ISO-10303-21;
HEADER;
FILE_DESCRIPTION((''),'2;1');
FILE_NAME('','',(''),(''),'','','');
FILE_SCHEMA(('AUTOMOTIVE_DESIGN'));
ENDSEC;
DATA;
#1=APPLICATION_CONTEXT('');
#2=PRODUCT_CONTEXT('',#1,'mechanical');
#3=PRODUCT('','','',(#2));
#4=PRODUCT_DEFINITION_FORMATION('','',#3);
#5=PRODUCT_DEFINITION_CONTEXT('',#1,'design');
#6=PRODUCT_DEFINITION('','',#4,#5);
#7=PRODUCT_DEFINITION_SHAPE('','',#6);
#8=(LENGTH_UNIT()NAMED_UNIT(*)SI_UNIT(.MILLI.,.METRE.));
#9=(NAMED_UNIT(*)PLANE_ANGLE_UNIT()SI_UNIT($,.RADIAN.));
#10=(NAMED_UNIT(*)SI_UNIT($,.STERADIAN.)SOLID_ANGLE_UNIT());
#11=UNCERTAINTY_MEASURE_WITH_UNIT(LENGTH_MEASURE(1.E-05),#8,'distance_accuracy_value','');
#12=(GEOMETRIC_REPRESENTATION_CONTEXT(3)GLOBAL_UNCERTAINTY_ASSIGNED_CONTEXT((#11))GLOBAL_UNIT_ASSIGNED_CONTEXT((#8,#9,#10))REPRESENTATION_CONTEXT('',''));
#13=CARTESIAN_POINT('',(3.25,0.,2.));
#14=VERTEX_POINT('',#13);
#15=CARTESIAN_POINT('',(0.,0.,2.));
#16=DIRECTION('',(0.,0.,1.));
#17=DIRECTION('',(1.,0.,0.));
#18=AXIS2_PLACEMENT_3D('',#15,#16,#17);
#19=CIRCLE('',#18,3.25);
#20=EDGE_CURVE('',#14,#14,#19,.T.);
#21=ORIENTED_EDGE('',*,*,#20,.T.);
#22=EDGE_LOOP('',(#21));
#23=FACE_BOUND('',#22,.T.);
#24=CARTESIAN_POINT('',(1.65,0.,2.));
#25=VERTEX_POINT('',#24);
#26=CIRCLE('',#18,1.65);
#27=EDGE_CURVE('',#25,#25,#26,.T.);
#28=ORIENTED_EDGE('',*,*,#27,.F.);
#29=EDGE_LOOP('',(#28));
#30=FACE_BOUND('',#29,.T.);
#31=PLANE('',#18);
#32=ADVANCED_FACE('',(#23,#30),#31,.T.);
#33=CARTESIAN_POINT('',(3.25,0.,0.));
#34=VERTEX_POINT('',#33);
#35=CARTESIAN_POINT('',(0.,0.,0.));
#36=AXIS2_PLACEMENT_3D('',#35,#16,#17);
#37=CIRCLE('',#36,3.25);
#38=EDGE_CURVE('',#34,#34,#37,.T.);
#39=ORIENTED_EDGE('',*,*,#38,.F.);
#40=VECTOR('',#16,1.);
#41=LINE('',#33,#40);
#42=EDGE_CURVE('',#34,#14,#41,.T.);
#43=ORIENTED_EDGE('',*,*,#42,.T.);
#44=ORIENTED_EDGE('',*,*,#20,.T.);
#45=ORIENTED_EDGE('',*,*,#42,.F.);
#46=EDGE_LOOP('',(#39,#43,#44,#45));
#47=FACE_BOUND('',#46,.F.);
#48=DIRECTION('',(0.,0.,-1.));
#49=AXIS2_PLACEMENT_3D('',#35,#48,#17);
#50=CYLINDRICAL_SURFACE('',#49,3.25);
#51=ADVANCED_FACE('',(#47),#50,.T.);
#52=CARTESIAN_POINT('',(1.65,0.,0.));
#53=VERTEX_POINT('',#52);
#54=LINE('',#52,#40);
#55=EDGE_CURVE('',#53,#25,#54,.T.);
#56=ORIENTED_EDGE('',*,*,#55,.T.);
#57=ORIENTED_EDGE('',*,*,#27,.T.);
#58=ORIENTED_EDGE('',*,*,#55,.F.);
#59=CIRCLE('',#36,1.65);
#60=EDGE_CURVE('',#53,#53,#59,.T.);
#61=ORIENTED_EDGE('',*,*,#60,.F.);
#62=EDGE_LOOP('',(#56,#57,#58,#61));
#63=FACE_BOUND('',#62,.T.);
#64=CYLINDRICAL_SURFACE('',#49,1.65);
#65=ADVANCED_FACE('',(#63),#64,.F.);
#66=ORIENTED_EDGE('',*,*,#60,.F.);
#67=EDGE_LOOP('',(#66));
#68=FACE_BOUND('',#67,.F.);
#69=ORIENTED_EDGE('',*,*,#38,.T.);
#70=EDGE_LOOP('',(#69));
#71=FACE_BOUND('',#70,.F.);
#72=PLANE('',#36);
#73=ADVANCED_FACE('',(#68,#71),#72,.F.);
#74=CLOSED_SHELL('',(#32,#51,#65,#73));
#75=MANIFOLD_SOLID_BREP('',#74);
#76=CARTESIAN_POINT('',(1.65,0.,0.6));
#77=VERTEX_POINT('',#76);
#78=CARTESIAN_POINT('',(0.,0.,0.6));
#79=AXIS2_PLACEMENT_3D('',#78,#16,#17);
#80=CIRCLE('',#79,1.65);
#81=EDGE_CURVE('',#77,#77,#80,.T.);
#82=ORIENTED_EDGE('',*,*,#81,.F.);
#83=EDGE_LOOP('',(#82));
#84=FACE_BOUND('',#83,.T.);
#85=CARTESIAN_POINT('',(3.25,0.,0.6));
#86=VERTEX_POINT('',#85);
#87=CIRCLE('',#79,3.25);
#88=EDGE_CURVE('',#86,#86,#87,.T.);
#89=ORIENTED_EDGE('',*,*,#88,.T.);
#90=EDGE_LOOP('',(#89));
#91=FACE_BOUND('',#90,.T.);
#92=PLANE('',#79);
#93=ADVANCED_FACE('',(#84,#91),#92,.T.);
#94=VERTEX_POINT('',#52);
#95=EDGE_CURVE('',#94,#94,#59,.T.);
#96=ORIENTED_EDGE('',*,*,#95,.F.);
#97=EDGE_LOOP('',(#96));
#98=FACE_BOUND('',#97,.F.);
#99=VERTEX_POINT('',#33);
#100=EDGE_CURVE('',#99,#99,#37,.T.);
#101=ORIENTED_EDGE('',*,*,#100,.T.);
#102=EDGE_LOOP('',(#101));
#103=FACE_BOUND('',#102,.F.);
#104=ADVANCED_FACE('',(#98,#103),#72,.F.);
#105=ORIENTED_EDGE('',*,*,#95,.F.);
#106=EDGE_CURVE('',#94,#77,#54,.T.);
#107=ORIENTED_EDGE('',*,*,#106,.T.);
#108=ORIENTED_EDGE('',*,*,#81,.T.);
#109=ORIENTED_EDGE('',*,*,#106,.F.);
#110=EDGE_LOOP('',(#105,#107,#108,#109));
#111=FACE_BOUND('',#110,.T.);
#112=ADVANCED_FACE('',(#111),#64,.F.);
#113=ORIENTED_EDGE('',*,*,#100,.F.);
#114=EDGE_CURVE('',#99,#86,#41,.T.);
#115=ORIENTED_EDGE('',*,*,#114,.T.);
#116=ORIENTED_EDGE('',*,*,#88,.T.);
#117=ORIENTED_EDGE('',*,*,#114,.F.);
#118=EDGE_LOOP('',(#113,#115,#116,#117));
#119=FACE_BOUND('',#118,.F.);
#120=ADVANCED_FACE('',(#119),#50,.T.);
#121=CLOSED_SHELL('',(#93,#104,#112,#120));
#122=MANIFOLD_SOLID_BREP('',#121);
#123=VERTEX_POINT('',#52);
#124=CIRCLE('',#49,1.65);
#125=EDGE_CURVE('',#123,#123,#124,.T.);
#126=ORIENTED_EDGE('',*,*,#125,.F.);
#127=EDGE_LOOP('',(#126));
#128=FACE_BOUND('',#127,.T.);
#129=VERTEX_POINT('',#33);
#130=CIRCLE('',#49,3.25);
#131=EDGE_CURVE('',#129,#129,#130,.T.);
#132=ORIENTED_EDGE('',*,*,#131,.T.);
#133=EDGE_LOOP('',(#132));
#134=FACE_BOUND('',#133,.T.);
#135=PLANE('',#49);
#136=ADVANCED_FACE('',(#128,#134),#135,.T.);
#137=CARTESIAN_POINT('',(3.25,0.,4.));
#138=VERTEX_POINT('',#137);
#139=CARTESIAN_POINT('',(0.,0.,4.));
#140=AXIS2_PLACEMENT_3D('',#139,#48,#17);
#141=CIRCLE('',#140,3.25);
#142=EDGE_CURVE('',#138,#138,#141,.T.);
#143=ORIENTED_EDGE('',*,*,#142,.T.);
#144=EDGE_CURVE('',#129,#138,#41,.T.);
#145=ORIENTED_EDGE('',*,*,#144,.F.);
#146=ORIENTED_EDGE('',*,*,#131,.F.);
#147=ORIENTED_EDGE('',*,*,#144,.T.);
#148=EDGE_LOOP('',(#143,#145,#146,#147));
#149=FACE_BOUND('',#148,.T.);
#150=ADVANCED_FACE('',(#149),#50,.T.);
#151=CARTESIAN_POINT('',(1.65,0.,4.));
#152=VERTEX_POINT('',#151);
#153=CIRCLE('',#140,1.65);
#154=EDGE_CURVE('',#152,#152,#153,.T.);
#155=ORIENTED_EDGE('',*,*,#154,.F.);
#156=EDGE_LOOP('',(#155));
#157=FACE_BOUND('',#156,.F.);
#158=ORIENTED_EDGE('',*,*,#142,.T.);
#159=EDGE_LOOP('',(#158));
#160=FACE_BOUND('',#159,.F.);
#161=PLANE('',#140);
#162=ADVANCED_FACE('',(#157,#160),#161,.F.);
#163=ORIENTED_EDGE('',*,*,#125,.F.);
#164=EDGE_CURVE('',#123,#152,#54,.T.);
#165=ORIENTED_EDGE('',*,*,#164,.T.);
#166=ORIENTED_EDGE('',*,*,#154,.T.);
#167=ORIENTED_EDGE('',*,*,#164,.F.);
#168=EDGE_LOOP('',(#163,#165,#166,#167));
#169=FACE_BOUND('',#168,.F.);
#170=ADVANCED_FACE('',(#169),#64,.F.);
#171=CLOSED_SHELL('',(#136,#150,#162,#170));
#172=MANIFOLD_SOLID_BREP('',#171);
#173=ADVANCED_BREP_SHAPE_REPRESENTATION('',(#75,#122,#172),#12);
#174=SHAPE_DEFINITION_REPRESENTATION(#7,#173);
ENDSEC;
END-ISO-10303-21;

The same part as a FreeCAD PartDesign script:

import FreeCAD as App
import Part
import Sketcher
from FreeCAD import Vector
Q = App.Units.Quantity

doc = App.newDocument("Part")
body = doc.addObject("PartDesign::Body", "Body")

# Sketch on XY plane
sketch1 = doc.addObject("Sketcher::SketchObject", "Sketch")
body.addObject(sketch1)
sketch1.AttachmentSupport = (doc.XY_Plane, [""])
sketch1.MapMode = "FlatFace"
sketch1.addGeometry([
    Part.Circle(Vector(0, 0, 0), Vector(0, 0, 1), 3.2),
    Part.Circle(Vector(0, 0, 0), Vector(0, 0, 1), 1.6),
], False)
sketch1.addConstraint([
    Sketcher.Constraint("Coincident", 0, 3, -1, 1),
    Sketcher.Constraint("Coincident", 1, 3, -1, 1),
    Sketcher.Constraint("Diameter", 0, Q("6.5 mm")),
    Sketcher.Constraint("Diameter", 1, Q("3.3 mm")),
])
pad1 = doc.addObject("PartDesign::Pad", "Pad")
body.addObject(pad1)
pad1.Profile = sketch1
pad1.Length = 0.6
body2 = doc.addObject("PartDesign::Body", "Body001")

# Sketch on XY plane
sketch2 = doc.addObject("Sketcher::SketchObject", "Sketch001")
body2.addObject(sketch2)
sketch2.AttachmentSupport = (doc.getObject("XY_Plane001"), [""])
sketch2.MapMode = "FlatFace"
sketch2.addGeometry([
    Part.Circle(Vector(0, 0, 0), Vector(0, 0, 1), 3.2),
    Part.Circle(Vector(0, 0, 0), Vector(0, 0, 1), 1.6),
], False)
sketch2.addConstraint([
    Sketcher.Constraint("Coincident", 0, 3, -1, 1),
    Sketcher.Constraint("Coincident", 1, 3, -1, 1),
    Sketcher.Constraint("Diameter", 0, Q("6.5 mm")),
    Sketcher.Constraint("Diameter", 1, Q("3.3 mm")),
])
pad2 = doc.addObject("PartDesign::Pad", "Pad001")
body2.addObject(pad2)
pad2.Profile = sketch2
pad2.Length = 2
body3 = doc.addObject("PartDesign::Body", "Body002")

# Sketch on XY plane
sketch3 = doc.addObject("Sketcher::SketchObject", "Sketch002")
body3.addObject(sketch3)
sketch3.AttachmentSupport = (doc.getObject("XY_Plane002"), [""])
sketch3.MapMode = "FlatFace"
sketch3.addGeometry([
    Part.Circle(Vector(0, 0, 0), Vector(0, 0, 1), 3.2),
    Part.Circle(Vector(0, 0, 0), Vector(0, 0, 1), 1.6),
], False)
sketch3.addConstraint([
    Sketcher.Constraint("Coincident", 0, 3, -1, 1),
    Sketcher.Constraint("Coincident", 1, 3, -1, 1),
    Sketcher.Constraint("Diameter", 0, Q("6.5 mm")),
    Sketcher.Constraint("Diameter", 1, Q("3.3 mm")),
])
pad3 = doc.addObject("PartDesign::Pad", "Pad002")
body3.addObject(pad3)
pad3.Profile = sketch3
pad3.Length = 4

doc.recompute()
